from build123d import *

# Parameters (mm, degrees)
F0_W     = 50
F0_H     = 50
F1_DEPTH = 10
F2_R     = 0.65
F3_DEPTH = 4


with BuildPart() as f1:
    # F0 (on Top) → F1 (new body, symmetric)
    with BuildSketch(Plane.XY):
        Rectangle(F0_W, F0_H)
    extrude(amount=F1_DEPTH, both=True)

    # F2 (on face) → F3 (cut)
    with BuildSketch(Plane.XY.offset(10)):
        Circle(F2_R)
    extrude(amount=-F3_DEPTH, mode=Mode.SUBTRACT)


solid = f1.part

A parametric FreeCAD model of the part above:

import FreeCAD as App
import Part
import Sketcher
from FreeCAD import Vector
Q = App.Units.Quantity

doc = App.newDocument("Part")
body = doc.addObject("PartDesign::Body", "Body")

# Sketch on XY plane
sketch1 = body.newObject("Sketcher::SketchObject", "Sketch")
sketch1.AttachmentSupport = (doc.getObject("XY_Plane"), [""])
sketch1.MapMode = "FlatFace"
sketch1.addGeometry([
    Part.LineSegment(Vector(-25, 25, 0), Vector(-25, -25, 0)),
    Part.LineSegment(Vector(-25, -25, 0), Vector(25, -25, 0)),
    Part.LineSegment(Vector(25, -25, 0), Vector(25, 25, 0)),
    Part.LineSegment(Vector(25, 25, 0), Vector(-25, 25, 0)),
], False)
sketch1.addConstraint([
    Sketcher.Constraint("Coincident", 0, 2, 1, 1),
    Sketcher.Constraint("Coincident", 1, 2, 2, 1),
    Sketcher.Constraint("Coincident", 2, 2, 3, 1),
    Sketcher.Constraint("Coincident", 3, 2, 0, 1),
    Sketcher.Constraint("Vertical", 0),
    Sketcher.Constraint("Horizontal", 1),
    Sketcher.Constraint("Vertical", 2),
    Sketcher.Constraint("Horizontal", 3),
    Sketcher.Constraint("Symmetric", 0, 2, 2, 2, -1, 1),
    Sketcher.Constraint("Equal", 3, 0),
    Sketcher.Constraint("DistanceX", 1, 1, 1, 2, Q("50 mm")),
])
pad1 = body.newObject("PartDesign::Pad", "Pad")
pad1.Profile = sketch1
pad1.Length = 20
pad1.Midplane = True

# Sketch on XY plane
sketch2 = body.newObject("Sketcher::SketchObject", "Sketch001")
sketch2.AttachmentSupport = (doc.getObject("XY_Plane"), [""])
sketch2.MapMode = "FlatFace"
sketch2.AttachmentOffset = App.Placement(Vector(0, 0, 10), App.Rotation())
sketch2.addGeometry(Part.Circle(Vector(0, 0, 0), Vector(0, 0, 1), 0.7), False)
sketch2.addConstraint([
    Sketcher.Constraint("Coincident", 0, 3, -1, 1),
    Sketcher.Constraint("Diameter", 0, Q("1.3 mm")),
])
pocket1 = body.newObject("PartDesign::Pocket", "Pocket")
pocket1.Profile = sketch2
pocket1.Length = 4

doc.recompute()
